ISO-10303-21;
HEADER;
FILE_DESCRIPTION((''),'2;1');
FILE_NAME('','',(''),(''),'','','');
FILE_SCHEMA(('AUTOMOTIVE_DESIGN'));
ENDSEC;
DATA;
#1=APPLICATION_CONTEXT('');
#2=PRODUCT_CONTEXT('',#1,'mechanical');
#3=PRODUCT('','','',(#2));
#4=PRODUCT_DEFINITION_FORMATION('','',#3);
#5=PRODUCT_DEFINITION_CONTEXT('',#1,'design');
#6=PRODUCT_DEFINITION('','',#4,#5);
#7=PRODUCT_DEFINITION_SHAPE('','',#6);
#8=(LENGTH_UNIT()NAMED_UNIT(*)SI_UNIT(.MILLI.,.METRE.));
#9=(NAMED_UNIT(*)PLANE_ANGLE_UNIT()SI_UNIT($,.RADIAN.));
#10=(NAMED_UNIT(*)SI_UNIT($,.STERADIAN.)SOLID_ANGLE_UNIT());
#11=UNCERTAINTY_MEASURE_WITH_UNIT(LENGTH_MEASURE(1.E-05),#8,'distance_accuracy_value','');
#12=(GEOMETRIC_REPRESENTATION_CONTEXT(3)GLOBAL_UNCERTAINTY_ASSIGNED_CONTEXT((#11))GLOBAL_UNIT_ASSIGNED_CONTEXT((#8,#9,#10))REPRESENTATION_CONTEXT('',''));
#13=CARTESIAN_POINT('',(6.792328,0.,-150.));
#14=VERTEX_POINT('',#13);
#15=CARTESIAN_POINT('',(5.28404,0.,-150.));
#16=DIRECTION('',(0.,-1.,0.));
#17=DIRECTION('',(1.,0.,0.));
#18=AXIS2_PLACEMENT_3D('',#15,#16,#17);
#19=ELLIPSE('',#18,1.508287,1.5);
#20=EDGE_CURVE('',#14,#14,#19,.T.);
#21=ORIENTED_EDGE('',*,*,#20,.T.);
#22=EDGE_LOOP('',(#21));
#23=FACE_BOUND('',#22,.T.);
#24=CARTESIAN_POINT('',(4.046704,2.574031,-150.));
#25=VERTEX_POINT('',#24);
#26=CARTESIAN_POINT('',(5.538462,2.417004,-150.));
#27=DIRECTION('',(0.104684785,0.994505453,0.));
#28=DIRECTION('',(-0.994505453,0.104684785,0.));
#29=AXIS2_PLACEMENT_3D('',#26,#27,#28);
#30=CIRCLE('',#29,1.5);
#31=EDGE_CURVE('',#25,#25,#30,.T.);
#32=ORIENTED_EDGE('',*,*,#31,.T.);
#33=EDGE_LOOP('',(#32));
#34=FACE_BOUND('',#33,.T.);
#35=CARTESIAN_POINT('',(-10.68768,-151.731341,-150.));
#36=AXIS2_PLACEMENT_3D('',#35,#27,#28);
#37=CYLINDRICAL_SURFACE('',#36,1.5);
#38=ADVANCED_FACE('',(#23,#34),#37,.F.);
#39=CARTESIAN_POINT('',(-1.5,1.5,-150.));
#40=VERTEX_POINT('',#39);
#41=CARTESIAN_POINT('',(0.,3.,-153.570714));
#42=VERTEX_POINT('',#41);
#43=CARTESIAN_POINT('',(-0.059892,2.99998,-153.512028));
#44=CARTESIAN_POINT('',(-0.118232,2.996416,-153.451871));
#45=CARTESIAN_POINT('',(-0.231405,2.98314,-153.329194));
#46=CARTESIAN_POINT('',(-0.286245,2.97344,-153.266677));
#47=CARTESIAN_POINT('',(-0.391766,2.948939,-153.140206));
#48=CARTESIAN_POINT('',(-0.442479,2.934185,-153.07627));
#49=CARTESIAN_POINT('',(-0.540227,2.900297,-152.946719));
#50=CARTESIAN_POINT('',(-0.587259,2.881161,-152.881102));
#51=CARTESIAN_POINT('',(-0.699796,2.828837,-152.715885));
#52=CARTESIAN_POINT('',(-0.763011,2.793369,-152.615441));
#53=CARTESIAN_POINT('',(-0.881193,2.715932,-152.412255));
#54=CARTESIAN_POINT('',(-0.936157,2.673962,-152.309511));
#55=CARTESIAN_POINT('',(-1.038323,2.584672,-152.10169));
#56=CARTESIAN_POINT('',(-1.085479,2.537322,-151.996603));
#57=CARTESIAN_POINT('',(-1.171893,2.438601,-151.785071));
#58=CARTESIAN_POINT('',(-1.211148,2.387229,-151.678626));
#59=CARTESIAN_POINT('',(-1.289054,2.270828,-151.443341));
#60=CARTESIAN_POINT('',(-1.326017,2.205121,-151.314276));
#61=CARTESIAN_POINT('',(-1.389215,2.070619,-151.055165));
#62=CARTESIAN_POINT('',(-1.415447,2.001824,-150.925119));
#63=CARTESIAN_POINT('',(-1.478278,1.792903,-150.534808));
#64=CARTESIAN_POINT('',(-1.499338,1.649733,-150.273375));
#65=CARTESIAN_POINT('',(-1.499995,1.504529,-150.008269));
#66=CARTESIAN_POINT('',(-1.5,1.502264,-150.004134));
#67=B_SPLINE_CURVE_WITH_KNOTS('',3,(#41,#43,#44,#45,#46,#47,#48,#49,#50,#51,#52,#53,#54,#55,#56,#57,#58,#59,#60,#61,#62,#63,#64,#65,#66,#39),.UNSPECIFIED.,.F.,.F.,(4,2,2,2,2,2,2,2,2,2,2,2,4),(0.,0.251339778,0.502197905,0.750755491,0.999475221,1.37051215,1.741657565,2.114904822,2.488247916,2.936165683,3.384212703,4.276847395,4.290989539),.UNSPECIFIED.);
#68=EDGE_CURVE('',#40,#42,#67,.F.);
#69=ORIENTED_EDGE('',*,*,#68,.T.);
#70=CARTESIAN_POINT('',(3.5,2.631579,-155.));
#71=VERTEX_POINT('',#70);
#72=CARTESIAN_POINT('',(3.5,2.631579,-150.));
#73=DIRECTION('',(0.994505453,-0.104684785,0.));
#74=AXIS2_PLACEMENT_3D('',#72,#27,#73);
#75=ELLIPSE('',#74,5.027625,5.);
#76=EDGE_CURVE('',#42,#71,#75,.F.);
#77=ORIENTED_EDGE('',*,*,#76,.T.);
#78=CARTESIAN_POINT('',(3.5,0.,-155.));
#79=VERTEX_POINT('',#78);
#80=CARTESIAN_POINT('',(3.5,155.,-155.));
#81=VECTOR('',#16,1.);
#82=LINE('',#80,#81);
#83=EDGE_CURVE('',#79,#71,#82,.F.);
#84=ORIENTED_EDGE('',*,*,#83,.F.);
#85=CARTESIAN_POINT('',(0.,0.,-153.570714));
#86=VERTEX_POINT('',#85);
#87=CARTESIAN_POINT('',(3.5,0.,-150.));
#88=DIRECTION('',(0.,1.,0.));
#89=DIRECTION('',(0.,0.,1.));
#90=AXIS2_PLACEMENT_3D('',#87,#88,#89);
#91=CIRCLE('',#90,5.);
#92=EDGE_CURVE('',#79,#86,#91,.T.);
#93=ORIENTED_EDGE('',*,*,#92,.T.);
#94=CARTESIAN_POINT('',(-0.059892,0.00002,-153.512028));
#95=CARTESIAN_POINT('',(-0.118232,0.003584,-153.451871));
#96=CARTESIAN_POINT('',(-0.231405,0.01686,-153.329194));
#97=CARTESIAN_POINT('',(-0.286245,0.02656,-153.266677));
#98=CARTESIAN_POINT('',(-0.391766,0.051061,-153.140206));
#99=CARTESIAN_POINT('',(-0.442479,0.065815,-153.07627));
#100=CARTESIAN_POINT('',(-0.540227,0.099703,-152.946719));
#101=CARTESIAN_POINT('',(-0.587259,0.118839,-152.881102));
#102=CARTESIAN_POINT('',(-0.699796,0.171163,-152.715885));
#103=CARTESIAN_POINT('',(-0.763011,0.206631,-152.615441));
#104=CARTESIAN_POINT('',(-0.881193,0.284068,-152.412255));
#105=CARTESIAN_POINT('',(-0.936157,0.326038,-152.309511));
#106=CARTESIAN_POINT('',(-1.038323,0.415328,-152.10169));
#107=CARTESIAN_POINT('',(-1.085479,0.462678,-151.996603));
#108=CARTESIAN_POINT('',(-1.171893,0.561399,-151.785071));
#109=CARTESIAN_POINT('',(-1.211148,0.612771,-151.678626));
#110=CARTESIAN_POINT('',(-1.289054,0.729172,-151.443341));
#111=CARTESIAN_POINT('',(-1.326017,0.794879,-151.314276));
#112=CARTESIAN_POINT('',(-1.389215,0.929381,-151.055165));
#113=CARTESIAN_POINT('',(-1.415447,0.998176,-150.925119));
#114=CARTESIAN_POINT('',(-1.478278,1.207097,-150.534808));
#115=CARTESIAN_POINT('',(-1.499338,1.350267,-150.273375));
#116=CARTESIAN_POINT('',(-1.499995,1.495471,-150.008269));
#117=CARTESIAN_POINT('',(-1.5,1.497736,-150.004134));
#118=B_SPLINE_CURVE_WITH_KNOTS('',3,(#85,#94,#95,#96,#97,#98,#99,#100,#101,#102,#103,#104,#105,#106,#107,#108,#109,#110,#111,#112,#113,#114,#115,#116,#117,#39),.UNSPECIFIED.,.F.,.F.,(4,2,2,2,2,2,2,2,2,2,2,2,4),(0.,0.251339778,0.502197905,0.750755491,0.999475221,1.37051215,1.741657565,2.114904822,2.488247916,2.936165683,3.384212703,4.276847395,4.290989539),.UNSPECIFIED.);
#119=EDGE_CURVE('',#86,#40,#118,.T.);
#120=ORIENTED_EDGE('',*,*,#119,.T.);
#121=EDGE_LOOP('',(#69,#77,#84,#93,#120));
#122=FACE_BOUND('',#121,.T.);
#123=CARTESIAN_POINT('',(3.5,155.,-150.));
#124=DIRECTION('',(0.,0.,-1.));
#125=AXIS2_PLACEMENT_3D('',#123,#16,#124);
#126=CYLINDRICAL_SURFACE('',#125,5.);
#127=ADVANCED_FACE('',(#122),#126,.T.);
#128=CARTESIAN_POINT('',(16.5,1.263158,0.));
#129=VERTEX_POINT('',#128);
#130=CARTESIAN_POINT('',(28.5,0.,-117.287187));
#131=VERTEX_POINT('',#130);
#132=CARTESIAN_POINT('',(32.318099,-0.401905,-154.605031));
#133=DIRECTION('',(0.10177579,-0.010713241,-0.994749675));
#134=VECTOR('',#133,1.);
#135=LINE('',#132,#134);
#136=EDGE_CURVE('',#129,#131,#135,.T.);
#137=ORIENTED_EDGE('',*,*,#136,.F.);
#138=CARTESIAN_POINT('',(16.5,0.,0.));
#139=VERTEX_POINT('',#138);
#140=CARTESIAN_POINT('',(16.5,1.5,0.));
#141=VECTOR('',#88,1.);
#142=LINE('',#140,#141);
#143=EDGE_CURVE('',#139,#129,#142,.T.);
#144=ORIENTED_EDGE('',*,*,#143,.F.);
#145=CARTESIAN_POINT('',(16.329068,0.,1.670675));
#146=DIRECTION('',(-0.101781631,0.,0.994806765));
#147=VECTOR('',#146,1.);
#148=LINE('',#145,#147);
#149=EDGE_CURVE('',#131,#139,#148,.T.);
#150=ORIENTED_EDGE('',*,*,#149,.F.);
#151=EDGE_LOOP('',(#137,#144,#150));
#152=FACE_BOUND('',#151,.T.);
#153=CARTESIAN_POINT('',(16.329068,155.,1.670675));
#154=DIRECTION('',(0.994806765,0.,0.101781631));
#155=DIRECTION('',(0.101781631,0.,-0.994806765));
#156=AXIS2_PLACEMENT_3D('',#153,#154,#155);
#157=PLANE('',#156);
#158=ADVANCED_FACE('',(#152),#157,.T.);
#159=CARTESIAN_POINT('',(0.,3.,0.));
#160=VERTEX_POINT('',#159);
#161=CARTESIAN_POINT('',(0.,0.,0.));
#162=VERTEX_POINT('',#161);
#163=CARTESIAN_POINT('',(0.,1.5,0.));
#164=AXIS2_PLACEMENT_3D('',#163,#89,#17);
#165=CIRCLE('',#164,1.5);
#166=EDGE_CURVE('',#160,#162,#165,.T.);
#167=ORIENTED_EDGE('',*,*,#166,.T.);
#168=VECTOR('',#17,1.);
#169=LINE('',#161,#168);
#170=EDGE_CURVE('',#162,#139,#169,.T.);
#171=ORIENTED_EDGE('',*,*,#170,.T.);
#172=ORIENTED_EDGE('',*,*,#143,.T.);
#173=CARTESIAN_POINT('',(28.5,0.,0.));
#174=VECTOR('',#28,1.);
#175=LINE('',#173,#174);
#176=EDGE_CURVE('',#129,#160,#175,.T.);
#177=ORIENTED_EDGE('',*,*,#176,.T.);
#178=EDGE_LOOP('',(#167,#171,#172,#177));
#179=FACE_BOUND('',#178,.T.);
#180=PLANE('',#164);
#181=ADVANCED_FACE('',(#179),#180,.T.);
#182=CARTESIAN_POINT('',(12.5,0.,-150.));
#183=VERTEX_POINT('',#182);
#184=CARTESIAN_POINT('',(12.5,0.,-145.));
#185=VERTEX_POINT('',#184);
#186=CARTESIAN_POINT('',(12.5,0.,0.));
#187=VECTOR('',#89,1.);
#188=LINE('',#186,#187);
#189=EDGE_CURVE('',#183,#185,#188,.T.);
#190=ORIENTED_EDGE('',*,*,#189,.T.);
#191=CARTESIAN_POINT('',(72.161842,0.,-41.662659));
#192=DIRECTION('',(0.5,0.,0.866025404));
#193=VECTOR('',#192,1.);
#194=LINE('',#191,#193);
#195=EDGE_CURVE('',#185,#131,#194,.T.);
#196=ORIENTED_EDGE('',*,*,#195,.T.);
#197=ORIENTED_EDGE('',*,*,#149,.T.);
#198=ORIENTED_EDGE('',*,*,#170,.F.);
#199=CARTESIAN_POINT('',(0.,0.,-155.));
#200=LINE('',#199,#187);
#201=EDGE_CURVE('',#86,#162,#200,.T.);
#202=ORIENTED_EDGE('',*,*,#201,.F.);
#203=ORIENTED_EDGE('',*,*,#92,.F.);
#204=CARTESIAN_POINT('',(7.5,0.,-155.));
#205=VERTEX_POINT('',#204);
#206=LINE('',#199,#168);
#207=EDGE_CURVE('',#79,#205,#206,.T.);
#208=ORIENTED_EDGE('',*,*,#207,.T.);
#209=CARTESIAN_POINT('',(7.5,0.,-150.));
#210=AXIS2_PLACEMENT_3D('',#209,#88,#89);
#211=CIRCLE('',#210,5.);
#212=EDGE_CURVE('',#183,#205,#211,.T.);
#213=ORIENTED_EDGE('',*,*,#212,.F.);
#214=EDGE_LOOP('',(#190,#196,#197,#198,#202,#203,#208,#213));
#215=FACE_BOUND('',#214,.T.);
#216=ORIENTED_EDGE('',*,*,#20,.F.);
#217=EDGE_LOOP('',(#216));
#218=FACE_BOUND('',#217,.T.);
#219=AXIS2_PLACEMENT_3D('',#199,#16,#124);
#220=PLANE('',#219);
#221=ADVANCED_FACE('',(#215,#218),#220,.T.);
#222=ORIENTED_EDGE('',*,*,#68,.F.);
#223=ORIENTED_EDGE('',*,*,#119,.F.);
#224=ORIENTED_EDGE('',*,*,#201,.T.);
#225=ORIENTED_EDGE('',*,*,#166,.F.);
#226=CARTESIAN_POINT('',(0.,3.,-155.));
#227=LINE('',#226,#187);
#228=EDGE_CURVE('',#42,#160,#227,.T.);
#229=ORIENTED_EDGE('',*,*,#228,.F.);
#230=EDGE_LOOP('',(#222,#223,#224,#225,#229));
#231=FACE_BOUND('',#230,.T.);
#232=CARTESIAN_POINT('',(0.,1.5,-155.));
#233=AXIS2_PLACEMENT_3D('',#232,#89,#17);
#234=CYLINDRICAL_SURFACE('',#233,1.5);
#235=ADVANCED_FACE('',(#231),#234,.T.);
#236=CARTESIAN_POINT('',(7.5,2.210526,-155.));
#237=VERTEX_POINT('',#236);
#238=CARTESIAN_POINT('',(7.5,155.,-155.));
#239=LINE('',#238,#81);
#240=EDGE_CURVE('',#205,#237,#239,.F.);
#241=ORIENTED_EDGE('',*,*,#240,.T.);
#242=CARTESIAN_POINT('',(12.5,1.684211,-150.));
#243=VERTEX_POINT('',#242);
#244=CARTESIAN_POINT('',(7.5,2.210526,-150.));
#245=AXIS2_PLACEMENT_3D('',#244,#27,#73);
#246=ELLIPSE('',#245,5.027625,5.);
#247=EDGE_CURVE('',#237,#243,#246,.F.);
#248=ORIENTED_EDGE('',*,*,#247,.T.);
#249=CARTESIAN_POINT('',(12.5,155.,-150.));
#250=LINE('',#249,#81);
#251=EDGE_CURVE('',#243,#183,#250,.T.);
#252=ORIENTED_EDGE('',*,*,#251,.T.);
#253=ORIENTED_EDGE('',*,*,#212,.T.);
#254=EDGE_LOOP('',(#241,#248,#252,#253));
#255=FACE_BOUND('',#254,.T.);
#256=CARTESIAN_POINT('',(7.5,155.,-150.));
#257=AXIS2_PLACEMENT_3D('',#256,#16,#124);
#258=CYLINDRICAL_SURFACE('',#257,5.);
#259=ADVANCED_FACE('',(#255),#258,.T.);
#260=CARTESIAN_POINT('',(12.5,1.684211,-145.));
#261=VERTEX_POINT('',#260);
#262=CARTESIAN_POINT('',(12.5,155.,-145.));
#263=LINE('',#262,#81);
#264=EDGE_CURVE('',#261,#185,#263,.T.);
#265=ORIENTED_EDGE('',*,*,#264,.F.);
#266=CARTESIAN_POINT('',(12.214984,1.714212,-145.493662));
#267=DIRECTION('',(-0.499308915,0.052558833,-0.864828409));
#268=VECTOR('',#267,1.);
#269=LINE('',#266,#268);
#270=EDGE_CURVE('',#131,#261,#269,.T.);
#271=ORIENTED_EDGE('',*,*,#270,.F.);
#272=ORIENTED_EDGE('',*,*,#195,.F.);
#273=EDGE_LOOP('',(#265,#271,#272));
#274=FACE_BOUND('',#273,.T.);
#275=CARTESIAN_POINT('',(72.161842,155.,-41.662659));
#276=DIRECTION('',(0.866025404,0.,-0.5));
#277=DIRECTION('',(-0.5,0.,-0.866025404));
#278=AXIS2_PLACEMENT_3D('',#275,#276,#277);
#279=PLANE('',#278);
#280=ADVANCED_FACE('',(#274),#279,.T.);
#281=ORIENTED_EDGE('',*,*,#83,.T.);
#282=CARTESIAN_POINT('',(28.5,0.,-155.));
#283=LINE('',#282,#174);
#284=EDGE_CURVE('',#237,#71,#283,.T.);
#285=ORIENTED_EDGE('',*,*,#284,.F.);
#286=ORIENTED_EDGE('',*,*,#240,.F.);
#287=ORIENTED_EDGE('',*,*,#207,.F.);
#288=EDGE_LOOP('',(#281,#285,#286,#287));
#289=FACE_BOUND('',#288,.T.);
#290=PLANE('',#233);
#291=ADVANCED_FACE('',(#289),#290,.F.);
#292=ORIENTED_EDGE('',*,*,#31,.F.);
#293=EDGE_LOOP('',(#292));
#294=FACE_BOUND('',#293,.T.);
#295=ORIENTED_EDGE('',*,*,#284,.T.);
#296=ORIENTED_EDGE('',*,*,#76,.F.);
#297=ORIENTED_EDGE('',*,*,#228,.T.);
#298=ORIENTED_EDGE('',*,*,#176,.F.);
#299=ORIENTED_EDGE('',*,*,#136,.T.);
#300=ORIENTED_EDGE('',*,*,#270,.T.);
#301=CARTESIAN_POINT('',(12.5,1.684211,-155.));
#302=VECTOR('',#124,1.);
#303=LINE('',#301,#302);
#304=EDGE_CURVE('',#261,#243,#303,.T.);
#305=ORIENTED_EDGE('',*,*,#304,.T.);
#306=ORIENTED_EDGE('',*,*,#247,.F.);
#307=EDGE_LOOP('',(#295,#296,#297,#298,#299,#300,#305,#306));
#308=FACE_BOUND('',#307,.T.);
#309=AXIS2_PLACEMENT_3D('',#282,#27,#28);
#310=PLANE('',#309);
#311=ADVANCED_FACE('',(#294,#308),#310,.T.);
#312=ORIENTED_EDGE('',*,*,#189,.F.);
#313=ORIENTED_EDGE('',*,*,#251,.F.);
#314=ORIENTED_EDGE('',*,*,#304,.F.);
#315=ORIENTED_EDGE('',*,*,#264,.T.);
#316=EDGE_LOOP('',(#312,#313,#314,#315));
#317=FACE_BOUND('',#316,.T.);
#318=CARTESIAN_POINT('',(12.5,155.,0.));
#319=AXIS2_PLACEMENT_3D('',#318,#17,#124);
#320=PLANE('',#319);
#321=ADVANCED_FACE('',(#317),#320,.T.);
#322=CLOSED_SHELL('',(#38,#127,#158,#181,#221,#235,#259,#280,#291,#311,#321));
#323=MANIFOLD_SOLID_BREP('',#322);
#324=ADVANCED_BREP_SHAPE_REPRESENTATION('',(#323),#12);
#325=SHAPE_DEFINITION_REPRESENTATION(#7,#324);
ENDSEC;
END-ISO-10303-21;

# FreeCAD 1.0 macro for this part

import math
import FreeCAD as App
import Part
import Sketcher
Q = App.Units.Quantity

doc = App.newDocument("Part")
body = doc.addObject("PartDesign::Body", "Body")

# Sketch on XY plane
sketch1 = doc.addObject("Sketcher::SketchObject", "Sketch")
body.addObject(sketch1)
sketch1.AttachmentSupport = (doc.XY_Plane, [""])
sketch1.MapMode = "FlatFace"
sketch1.addGeometry(Part.LineSegment(App.Vector(0, 0, 0), App.Vector(28.5, 0, 0)), False)
sketch1.addGeometry(Part.LineSegment(App.Vector(28.5, 0, 0), App.Vector(0, 3, 0)), False)
sketch1.addGeometry(Part.ArcOfCircle(Part.Circle(App.Vector(0, 1.5, 0), App.Vector(0, 0, 1), 1.5), math.radians(90), math.radians(270)), False)
sketch1.addConstraint(Sketcher.Constraint("Coincident", 0, 2, 1, 1))
sketch1.addConstraint(Sketcher.Constraint("Coincident", 1, 2, 2, 1))
sketch1.addConstraint(Sketcher.Constraint("Tangent", 2, 2, 0, 1))
sketch1.addConstraint(Sketcher.Constraint("Horizontal", 0))
sketch1.addConstraint(Sketcher.Constraint("Coincident", 2, 2, -1, 1))
sketch1.addConstraint(Sketcher.Constraint("PointOnObject", 1, 2, -2))
sketch1.addConstraint(Sketcher.Constraint("Radius", 2, Q("1.5 mm")))
sketch1.addConstraint(Sketcher.Constraint("DistanceX", 0, 1, 0, 2, Q("28.5 mm")))
pad1 = doc.addObject("PartDesign::Pad", "Pad")
body.addObject(pad1)
pad1.Profile = sketch1
pad1.Length = 155
pad1.Reversed = True

# Sketch on XZ plane
sketch2 = doc.addObject("Sketcher::SketchObject", "Sketch001")
body.addObject(sketch2)
sketch2.AttachmentSupport = (doc.XZ_Plane, [""])
sketch2.MapMode = "FlatFace"
sketch2.addGeometry(Part.LineSegment(App.Vector(28, 0, 0), App.Vector(28, -117, 0)), False)
sketch2.addGeometry(Part.LineSegment(App.Vector(28, -117, 0), App.Vector(16, 0, 0)), False)
sketch2.addGeometry(Part.LineSegment(App.Vector(16, 0, 0), App.Vector(28, 0, 0)), False)
sketch2.addGeometry(Part.ArcOfCircle(Part.Circle(App.Vector(8, -150, 0), App.Vector(0, 0, 1), 5), math.radians(-90), math.radians(0)), False)
sketch2.addGeometry(Part.LineSegment(App.Vector(12, -150, 0), App.Vector(12, -145, 0)), False)
sketch2.addGeometry(Part.LineSegment(App.Vector(12, -145, 0), App.Vector(28, -117, 0)), False)
sketch2.addGeometry(Part.LineSegment(App.Vector(28, -117, 0), App.Vector(28, -155, 0)), False)
sketch2.addGeometry(Part.LineSegment(App.Vector(28, -155, 0), App.Vector(8, -155, 0)), False)
sketch2.addGeometry(Part.ArcOfCircle(Part.Circle(App.Vector(4, -150, 0), App.Vector(0, 0, 1), 5), math.radians(180), math.radians(270)), False)
sketch2.addGeometry(Part.LineSegment(App.Vector(4, -155, 0), App.Vector(-2, -155, 0)), False)
sketch2.addGeometry(Part.LineSegment(App.Vector(-2, -155, 0), App.Vector(-2, -150, 0)), False)
sketch2.addConstraint(Sketcher.Constraint("Coincident", 0, 2, 1, 1))
sketch2.addConstraint(Sketcher.Constraint("Coincident", 1, 2, 2, 1))
sketch2.addConstraint(Sketcher.Constraint("Coincident", 2, 2, 0, 1))
sketch2.addConstraint(Sketcher.Constraint("Tangent", 3, 2, 4, 1))
sketch2.addConstraint(Sketcher.Constraint("Coincident", 4, 2, 5, 1))
sketch2.addConstraint(Sketcher.Constraint("Coincident", 5, 2, 6, 1))
sketch2.addConstraint(Sketcher.Constraint("Coincident", 6, 2, 7, 1))
sketch2.addConstraint(Sketcher.Constraint("Tangent", 7, 2, 3, 1))
sketch2.addConstraint(Sketcher.Constraint("Tangent", 8, 2, 9, 1))
sketch2.addConstraint(Sketcher.Constraint("Coincident", 9, 2, 10, 1))
sketch2.addConstraint(Sketcher.Constraint("Tangent", 10, 2, 8, 1))
sketch2.addConstraint(Sketcher.Constraint("Vertical", 0))
sketch2.addConstraint(Sketcher.Constraint("Horizontal", 2))
sketch2.addConstraint(Sketcher.Constraint("Vertical", 4))
sketch2.addConstraint(Sketcher.Constraint("Vertical", 6))
sketch2.addConstraint(Sketcher.Constraint("Horizontal", 7))
sketch2.addConstraint(Sketcher.Constraint("Horizontal", 9))
sketch2.addConstraint(Sketcher.Constraint("Vertical", 10))
sketch2.addConstraint(Sketcher.Constraint("Coincident", 5, 2, 0, 2))
sketch2.addConstraint(Sketcher.Constraint("Equal", 3, 8))
sketch2.addConstraint(Sketcher.Constraint("PointOnObject", 1, 2, -1))
sketch2.addConstraint(Sketcher.Constraint("Horizontal", 3, 3, 8, 3))
sketch2.addConstraint(Sketcher.Constraint("Equal", 9, 4))
sketch2.addConstraint(Sketcher.Constraint("Radius", 3, Q("5 mm")))
sketch2.addConstraint(Sketcher.Constraint("DistanceX", 2, 1, 2, 2, Q("12 mm")))
sketch2.addConstraint(Sketcher.Constraint("DistanceX", 7, 2, 7, 1, Q("21 mm")))
sketch2.addConstraint(Sketcher.Constraint("Angle", 5, Q("60 deg")))
sketch2.addConstraint(Sketcher.Constraint("DistanceY", 3, 3, -1, 1, Q("150 mm")))
sketch2.addConstraint(Sketcher.Constraint("DistanceX", 8, 3, 3, 3, Q("4 mm")))
sketch2.addConstraint(Sketcher.Constraint("DistanceX", -1, 1, 3, 3, Q("7.5 mm")))
pocket1 = doc.addObject("PartDesign::Pocket", "Pocket")
body.addObject(pocket1)
pocket1.Profile = sketch2
pocket1.Length = 155

# Sketch on an angled plane
sketch3 = doc.addObject("Sketcher::SketchObject", "Sketch002")
body.addObject(sketch3)
sketch3.Placement = App.Placement(App.Vector(0.312329, 2.967123, 0), App.Rotation(App.Vector(0.994505453, -0.104684785, 0), App.Vector(0, 0, -1), App.Vector(0.104684785, 0.994505453, 0), "ZXY"))
sketch3.addGeometry(Part.Circle(App.Vector(5.3, 150, 0), App.Vector(0, 0, 1), 1.5), False)
sketch3.addConstraint(Sketcher.Constraint("Diameter", 0, Q("3 mm")))
sketch3.addConstraint(Sketcher.Constraint("DistanceY", -1, 1, 0, 3, Q("150 mm")))
sketch3.addConstraint(Sketcher.Constraint("DistanceX", -1, 1, 0, 3, Q("5.255007 mm")))
pocket2 = doc.addObject("PartDesign::Pocket", "Pocket001")
body.addObject(pocket2)
pocket2.Profile = sketch3
pocket2.Length = 155

doc.recompute()
